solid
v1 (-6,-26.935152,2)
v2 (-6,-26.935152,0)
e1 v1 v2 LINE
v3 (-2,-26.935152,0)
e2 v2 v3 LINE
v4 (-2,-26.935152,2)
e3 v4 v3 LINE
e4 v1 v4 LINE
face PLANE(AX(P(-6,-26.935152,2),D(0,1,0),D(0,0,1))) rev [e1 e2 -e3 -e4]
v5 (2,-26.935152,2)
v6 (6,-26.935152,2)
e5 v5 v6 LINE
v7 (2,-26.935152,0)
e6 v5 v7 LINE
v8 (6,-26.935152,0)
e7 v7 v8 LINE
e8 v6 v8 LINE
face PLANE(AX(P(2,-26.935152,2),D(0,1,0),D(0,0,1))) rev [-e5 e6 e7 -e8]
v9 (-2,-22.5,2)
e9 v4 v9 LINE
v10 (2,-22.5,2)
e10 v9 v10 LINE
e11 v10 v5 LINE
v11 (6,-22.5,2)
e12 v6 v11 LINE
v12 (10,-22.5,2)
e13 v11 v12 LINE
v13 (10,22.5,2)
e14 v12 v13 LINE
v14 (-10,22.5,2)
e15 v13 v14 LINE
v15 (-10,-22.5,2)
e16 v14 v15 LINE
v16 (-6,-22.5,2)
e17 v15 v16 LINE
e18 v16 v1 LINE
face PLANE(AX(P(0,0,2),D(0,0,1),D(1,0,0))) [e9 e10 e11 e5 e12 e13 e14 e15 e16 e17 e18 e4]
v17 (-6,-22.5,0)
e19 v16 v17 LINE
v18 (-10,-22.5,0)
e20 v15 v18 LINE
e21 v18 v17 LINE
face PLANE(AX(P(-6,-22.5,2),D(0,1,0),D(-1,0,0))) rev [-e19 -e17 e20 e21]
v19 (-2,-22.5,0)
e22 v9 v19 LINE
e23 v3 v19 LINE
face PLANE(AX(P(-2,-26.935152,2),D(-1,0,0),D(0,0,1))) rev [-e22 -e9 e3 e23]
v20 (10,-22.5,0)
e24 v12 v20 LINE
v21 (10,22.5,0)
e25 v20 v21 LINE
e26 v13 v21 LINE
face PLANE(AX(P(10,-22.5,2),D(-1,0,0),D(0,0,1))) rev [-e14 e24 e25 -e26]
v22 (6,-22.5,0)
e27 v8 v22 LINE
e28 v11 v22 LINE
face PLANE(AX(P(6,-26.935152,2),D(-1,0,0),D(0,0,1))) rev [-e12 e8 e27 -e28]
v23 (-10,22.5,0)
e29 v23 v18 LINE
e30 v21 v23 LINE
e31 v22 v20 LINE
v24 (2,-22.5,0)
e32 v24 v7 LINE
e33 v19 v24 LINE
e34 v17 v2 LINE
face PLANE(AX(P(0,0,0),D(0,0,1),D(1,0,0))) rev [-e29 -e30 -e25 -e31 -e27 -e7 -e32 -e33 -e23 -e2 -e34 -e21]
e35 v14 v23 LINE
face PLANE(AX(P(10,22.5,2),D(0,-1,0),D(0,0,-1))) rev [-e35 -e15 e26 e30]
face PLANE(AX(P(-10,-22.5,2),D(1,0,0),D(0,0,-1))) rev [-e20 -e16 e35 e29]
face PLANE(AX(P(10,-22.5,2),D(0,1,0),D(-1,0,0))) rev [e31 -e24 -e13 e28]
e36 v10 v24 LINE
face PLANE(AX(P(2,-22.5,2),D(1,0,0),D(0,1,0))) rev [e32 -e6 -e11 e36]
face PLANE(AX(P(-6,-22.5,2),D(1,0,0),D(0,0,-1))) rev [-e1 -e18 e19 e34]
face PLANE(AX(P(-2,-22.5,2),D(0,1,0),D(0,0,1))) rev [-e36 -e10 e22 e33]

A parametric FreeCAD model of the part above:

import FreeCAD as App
import Part
import Sketcher

V = App.Vector
Q = App.Units.Quantity


def add_polygon(sketch, points):
    """Adds a closed chain of lines whose ends are joined by coincident constraints."""
    first, n = sketch.GeometryCount, len(points)
    for a, b in zip(points, points[1:] + points[:1]):
        sketch.addGeometry(Part.LineSegment(App.Vector(*a, 0), App.Vector(*b, 0)), False)
    for i in range(n):
        sketch.addConstraint(Sketcher.Constraint("Coincident", first + i, 2, first + (i + 1) % n, 1))

doc = App.newDocument("Part")
body = doc.addObject("PartDesign::Body", "Body")

sketch1 = body.newObject("Sketcher::SketchObject", "Sketch")
sketch1.AttachmentSupport = (doc.getObject("XY_Plane"), [""])
sketch1.MapMode = "FlatFace"
add_polygon(sketch1, [(6, -22.5), (10, -22.5), (10, 22.5), (-10, 22.5), (-10, -22.5), (-6, -22.5), (-6, -26.9), (-2, -26.9), (-2, -22.5), (2, -22.5), (2, -26.9), (6, -26.9)])
sketch1.addConstraint(Sketcher.Constraint("Horizontal", 0))
sketch1.addConstraint(Sketcher.Constraint("Vertical", 1))
sketch1.addConstraint(Sketcher.Constraint("Horizontal", 2))
sketch1.addConstraint(Sketcher.Constraint("Vertical", 3))
sketch1.addConstraint(Sketcher.Constraint("Horizontal", 4))
sketch1.addConstraint(Sketcher.Constraint("Vertical", 5))
sketch1.addConstraint(Sketcher.Constraint("Horizontal", 6))
sketch1.addConstraint(Sketcher.Constraint("Vertical", 7))
sketch1.addConstraint(Sketcher.Constraint("Horizontal", 8))
sketch1.addConstraint(Sketcher.Constraint("Vertical", 9))
sketch1.addConstraint(Sketcher.Constraint("Horizontal", 10))
sketch1.addConstraint(Sketcher.Constraint("Vertical", 11))
sketch1.addConstraint(Sketcher.Constraint("Symmetric", 0, 2, 2, 2, -1, 1))
sketch1.addConstraint(Sketcher.Constraint("Symmetric", 6, 2, 9, 2, -2))
sketch1.addConstraint(Sketcher.Constraint("Symmetric", 4, 2, 11, 2, -2))
sketch1.addConstraint(Sketcher.Constraint("Horizontal", 4, 2, 7, 2))
sketch1.addConstraint(Sketcher.Constraint("Equal", 4, 6))
sketch1.addConstraint(Sketcher.Constraint("Equal", 6, 8))
sketch1.addConstraint(Sketcher.Constraint("DistanceX", 0, 1, 0, 2, Q("4 mm")))
sketch1.addConstraint(Sketcher.Constraint("DistanceY", 1, 1, 1, 2, Q("45 mm")))
sketch1.addConstraint(Sketcher.Constraint("DistanceY", 5, 2, 5, 1, Q("4.435152 mm")))
pad1 = body.newObject("PartDesign::Pad", "Pad")
pad1.Profile = sketch1
pad1.Length = 2

doc.recompute()
